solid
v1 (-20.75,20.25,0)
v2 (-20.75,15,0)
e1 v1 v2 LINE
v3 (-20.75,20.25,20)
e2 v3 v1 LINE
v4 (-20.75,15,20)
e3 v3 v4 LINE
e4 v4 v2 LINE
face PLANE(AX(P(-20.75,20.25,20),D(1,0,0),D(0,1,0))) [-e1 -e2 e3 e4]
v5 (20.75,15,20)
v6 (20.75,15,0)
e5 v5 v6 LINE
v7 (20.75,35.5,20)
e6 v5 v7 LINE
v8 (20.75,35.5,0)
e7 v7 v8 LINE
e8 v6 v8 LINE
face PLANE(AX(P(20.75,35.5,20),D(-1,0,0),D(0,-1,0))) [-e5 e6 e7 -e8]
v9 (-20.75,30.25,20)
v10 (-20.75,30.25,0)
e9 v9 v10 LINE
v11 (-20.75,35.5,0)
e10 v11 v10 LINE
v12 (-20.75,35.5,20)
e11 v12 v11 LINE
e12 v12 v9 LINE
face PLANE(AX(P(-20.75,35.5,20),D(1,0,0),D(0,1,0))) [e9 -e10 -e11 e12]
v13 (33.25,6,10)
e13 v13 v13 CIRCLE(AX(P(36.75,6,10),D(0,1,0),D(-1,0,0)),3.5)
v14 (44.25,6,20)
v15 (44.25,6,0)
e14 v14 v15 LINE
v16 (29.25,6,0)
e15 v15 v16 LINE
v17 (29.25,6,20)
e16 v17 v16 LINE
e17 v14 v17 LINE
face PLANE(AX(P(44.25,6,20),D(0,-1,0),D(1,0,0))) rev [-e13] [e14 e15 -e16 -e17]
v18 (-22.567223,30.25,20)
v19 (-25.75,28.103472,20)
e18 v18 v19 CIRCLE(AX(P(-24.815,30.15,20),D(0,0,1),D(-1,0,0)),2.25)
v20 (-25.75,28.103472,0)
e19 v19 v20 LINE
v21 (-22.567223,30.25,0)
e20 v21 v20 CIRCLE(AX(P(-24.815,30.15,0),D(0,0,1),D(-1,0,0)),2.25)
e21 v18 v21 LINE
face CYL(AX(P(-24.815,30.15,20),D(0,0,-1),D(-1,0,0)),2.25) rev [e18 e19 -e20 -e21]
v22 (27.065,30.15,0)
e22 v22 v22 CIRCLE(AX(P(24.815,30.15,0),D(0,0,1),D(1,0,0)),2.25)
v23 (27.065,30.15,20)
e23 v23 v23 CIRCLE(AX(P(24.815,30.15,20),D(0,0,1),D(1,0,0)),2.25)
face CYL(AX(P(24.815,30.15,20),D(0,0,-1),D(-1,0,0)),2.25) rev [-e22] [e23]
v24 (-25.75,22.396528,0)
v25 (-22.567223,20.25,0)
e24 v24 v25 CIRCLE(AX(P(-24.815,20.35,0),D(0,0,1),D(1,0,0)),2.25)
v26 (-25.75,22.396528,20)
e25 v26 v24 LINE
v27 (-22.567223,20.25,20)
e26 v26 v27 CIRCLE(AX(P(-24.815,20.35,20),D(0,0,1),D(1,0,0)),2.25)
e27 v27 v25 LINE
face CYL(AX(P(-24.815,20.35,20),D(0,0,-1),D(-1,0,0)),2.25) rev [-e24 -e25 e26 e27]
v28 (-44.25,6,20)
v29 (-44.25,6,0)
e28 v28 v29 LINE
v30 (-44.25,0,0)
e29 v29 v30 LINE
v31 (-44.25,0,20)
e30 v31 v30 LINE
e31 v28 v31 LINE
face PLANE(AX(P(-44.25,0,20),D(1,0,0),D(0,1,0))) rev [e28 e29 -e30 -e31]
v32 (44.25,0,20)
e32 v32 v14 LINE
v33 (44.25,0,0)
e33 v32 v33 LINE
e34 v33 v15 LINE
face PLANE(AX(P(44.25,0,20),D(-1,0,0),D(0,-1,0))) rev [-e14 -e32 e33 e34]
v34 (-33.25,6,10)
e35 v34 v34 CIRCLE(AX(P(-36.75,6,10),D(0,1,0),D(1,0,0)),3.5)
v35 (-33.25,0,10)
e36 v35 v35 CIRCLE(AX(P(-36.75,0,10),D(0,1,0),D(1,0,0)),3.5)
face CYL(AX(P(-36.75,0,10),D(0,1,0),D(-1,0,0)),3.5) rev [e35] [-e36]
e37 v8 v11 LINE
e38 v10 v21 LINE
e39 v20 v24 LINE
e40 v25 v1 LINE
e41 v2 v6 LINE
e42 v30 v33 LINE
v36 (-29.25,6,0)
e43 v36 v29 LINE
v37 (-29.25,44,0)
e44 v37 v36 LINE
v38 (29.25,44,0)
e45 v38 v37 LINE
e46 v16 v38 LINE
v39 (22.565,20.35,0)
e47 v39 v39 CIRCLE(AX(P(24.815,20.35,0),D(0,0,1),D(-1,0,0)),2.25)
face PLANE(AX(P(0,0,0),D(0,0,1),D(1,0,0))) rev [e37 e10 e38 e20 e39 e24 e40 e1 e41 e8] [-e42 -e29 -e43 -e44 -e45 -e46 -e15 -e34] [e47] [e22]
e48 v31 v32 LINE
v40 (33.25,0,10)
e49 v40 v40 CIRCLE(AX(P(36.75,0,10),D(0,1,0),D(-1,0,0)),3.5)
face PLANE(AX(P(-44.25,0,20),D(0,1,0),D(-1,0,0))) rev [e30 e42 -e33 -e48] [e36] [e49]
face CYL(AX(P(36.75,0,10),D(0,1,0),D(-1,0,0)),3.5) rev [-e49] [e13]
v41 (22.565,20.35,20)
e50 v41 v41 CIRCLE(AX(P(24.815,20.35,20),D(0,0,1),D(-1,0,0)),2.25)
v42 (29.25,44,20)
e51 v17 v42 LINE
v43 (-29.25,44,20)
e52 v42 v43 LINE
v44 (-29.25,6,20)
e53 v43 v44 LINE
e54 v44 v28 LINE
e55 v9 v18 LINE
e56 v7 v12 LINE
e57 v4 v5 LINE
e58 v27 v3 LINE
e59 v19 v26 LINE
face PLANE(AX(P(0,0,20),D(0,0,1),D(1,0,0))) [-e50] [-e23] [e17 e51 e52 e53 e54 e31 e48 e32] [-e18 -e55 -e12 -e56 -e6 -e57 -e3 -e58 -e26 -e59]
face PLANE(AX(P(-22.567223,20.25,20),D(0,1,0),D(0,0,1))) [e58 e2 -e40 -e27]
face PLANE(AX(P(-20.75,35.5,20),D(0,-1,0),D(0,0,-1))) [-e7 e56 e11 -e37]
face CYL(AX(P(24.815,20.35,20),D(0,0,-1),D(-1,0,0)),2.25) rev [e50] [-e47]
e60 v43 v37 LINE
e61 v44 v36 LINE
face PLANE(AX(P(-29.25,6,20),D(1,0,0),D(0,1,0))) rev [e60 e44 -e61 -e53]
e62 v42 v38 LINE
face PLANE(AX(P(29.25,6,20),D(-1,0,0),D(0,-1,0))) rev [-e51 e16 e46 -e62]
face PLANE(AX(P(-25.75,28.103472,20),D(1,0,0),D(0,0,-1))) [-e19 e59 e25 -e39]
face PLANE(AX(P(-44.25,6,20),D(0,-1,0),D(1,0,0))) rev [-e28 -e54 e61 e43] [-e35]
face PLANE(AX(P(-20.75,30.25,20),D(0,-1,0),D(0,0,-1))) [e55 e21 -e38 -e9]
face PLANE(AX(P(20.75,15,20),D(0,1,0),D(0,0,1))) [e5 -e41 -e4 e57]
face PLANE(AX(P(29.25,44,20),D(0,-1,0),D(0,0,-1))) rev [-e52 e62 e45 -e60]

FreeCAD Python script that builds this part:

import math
import FreeCAD as App
import Part
import Sketcher
from FreeCAD import Vector

doc = App.newDocument("Part")
body = doc.addObject("PartDesign::Body", "Body")

# Sketch on XY plane
sketch1 = body.newObject("Sketcher::SketchObject", "Sketch")
sketch1.AttachmentSupport = (doc.getObject("XY_Plane"), [""])
sketch1.MapMode = "FlatFace"
sketch1.addGeometry(Part.LineSegment(Vector(-44.25, 0, 0), Vector(44.25, 0, 0)), False)
sketch1.addGeometry(Part.LineSegment(Vector(44.25, 0, 0), Vector(44.25, 6, 0)), False)
sketch1.addGeometry(Part.LineSegment(Vector(44.25, 6, 0), Vector(29.25, 6, 0)), False)
sketch1.addGeometry(Part.LineSegment(Vector(29.25, 6, 0), Vector(29.25, 44, 0)), False)
sketch1.addGeometry(Part.LineSegment(Vector(29.25, 44, 0), Vector(-29.25, 44, 0)), False)
sketch1.addGeometry(Part.LineSegment(Vector(-29.25, 44, 0), Vector(-29.25, 6, 0)), False)
sketch1.addGeometry(Part.LineSegment(Vector(-29.25, 6, 0), Vector(-44.25, 6, 0)), False)
sketch1.addGeometry(Part.LineSegment(Vector(-44.25, 6, 0), Vector(-44.25, 0, 0)), False)
sketch1.addGeometry(Part.Circle(Vector(24.815, 20.35, 0), Vector(0, 0, 1), 2.25), False)
sketch1.addGeometry(Part.LineSegment(Vector(-20.75, 30.25, 0), Vector(-20.75, 35.5, 0)), False)
sketch1.addGeometry(Part.LineSegment(Vector(-20.75, 35.5, 0), Vector(20.75, 35.5, 0)), False)
sketch1.addGeometry(Part.LineSegment(Vector(20.75, 35.5, 0), Vector(20.75, 15, 0)), False)
sketch1.addGeometry(Part.LineSegment(Vector(20.75, 15, 0), Vector(-20.75, 15, 0)), False)
sketch1.addGeometry(Part.LineSegment(Vector(-20.75, 15, 0), Vector(-20.75, 20.25, 0)), False)
sketch1.addGeometry(Part.LineSegment(Vector(-20.75, 20.25, 0), Vector(-22.567223, 20.25, 0)), False)
sketch1.addGeometry(Part.ArcOfCircle(Part.Circle(Vector(-24.815, 20.35, 0), Vector(0, 0, 1), 2.25), math.radians(114.554307), math.radians(357.452682)), False)
sketch1.addGeometry(Part.LineSegment(Vector(-25.75, 22.396528, 0), Vector(-25.75, 28.103472, 0)), False)
sketch1.addGeometry(Part.ArcOfCircle(Part.Circle(Vector(-24.815, 30.15, 0), Vector(0, 0, 1), 2.25), math.radians(2.547318), math.radians(245.445693)), False)
sketch1.addGeometry(Part.LineSegment(Vector(-22.567223, 30.25, 0), Vector(-20.75, 30.25, 0)), False)
sketch1.addGeometry(Part.Circle(Vector(24.815, 30.15, 0), Vector(0, 0, 1), 2.25), False)
sketch1.addConstraint(Sketcher.Constraint("Coincident", 0, 2, 1, 1))
sketch1.addConstraint(Sketcher.Constraint("Coincident", 1, 2, 2, 1))
sketch1.addConstraint(Sketcher.Constraint("Coincident", 2, 2, 3, 1))
sketch1.addConstraint(Sketcher.Constraint("Coincident", 3, 2, 4, 1))
sketch1.addConstraint(Sketcher.Constraint("Coincident", 4, 2, 5, 1))
sketch1.addConstraint(Sketcher.Constraint("Coincident", 5, 2, 6, 1))
sketch1.addConstraint(Sketcher.Constraint("Coincident", 6, 2, 7, 1))
sketch1.addConstraint(Sketcher.Constraint("Coincident", 7, 2, 0, 1))
sketch1.addConstraint(Sketcher.Constraint("Coincident", 9, 2, 10, 1))
sketch1.addConstraint(Sketcher.Constraint("Coincident", 10, 2, 11, 1))
sketch1.addConstraint(Sketcher.Constraint("Coincident", 11, 2, 12, 1))
sketch1.addConstraint(Sketcher.Constraint("Coincident", 12, 2, 13, 1))
sketch1.addConstraint(Sketcher.Constraint("Coincident", 13, 2, 14, 1))
sketch1.addConstraint(Sketcher.Constraint("Coincident", 14, 2, 15, 2))
sketch1.addConstraint(Sketcher.Constraint("Coincident", 15, 1, 16, 1))
sketch1.addConstraint(Sketcher.Constraint("Coincident", 16, 2, 17, 2))
sketch1.addConstraint(Sketcher.Constraint("Coincident", 17, 1, 18, 1))
sketch1.addConstraint(Sketcher.Constraint("Coincident", 18, 2, 9, 1))
sketch1.addConstraint(Sketcher.Constraint("Horizontal", 0))
sketch1.addConstraint(Sketcher.Constraint("Vertical", 1))
sketch1.addConstraint(Sketcher.Constraint("Horizontal", 2))
sketch1.addConstraint(Sketcher.Constraint("Vertical", 3))
sketch1.addConstraint(Sketcher.Constraint("Horizontal", 4))
sketch1.addConstraint(Sketcher.Constraint("Vertical", 5))
sketch1.addConstraint(Sketcher.Constraint("Horizontal", 6))
sketch1.addConstraint(Sketcher.Constraint("Vertical", 7))
sketch1.addConstraint(Sketcher.Constraint("Vertical", 9))
sketch1.addConstraint(Sketcher.Constraint("Horizontal", 10))
sketch1.addConstraint(Sketcher.Constraint("Vertical", 11))
sketch1.addConstraint(Sketcher.Constraint("Horizontal", 12))
sketch1.addConstraint(Sketcher.Constraint("Vertical", 13))
sketch1.addConstraint(Sketcher.Constraint("Horizontal", 14))
sketch1.addConstraint(Sketcher.Constraint("Vertical", 16))
sketch1.addConstraint(Sketcher.Constraint("Horizontal", 18))
sketch1.addConstraint(Sketcher.Constraint("Equal", 8, 15))
sketch1.addConstraint(Sketcher.Constraint("Equal", 15, 17))
sketch1.addConstraint(Sketcher.Constraint("Equal", 17, 19))
sketch1.addConstraint(Sketcher.Constraint("Symmetric", 0, 2, 7, 2, -1, 1))
sketch1.addConstraint(Sketcher.Constraint("Symmetric", 8, 3, 15, 3, -2))
sketch1.addConstraint(Sketcher.Constraint("Symmetric", 17, 3, 19, 3, -2))
sketch1.addConstraint(Sketcher.Constraint("Symmetric", 2, 2, 5, 2, -2))
sketch1.addConstraint(Sketcher.Constraint("Vertical", 15, 3, 17, 3))
sketch1.addConstraint(Sketcher.Constraint("Vertical", 9, 2, 12, 2))
sketch1.addConstraint(Sketcher.Constraint("Vertical", 14, 2, 17, 1))
sketch1.addConstraint(Sketcher.Constraint("Equal", 9, 13))
sketch1.addConstraint(Sketcher.Constraint("Diameter", 8, 4.5))
sketch1.addConstraint(Sketcher.Constraint("DistanceX", 2, 2, 2, 1, 15.0))
sketch1.addConstraint(Sketcher.Constraint("DistanceY", 1, 1, 1, 2, 6.0))
sketch1.addConstraint(Sketcher.Constraint("DistanceY", 3, 1, 3, 2, 38.0))
sketch1.addConstraint(Sketcher.Constraint("DistanceX", 0, 1, 0, 2, 88.5))
sketch1.addConstraint(Sketcher.Constraint("DistanceX", 10, 1, 10, 2, 41.5))
sketch1.addConstraint(Sketcher.Constraint("DistanceY", 11, 2, 11, 1, 20.5))
sketch1.addConstraint(Sketcher.Constraint("DistanceY", -1, 1, 11, 2, 15.0))
sketch1.addConstraint(Sketcher.Constraint("DistanceX", 15, 1, 13, 2, 5.0))
sketch1.addConstraint(Sketcher.Constraint("DistanceY", 14, 2, 17, 1, 10.0))
sketch1.addConstraint(Sketcher.Constraint("DistanceY", 15, 3, 17, 3, 9.8))
sketch1.addConstraint(Sketcher.Constraint("DistanceX", 4, 2, 9, 2, 8.5))
sketch1.addConstraint(Sketcher.Constraint("DistanceX", 15, 3, 8, 3, 49.63))
pad1 = body.newObject("PartDesign::Pad", "Pad")
pad1.Profile = sketch1
pad1.Length = 20

# Sketch on XZ plane
sketch2 = body.newObject("Sketcher::SketchObject", "Sketch001")
sketch2.AttachmentSupport = (doc.getObject("XZ_Plane"), [""])
sketch2.MapMode = "FlatFace"
sketch2.AttachmentOffset = App.Placement(Vector(0, 0, -6), App.Rotation())
sketch2.addGeometry(Part.Circle(Vector(36.75, 10, 0), Vector(0, 0, 1), 3.5), False)
sketch2.addGeometry(Part.Circle(Vector(-36.75, 10, 0), Vector(0, 0, 1), 3.5), False)
sketch2.addConstraint(Sketcher.Constraint("Equal", 0, 1))
sketch2.addConstraint(Sketcher.Constraint("Symmetric", 0, 3, 1, 3, -2))
sketch2.addConstraint(Sketcher.Constraint("Diameter", 0, 7.0))
sketch2.addConstraint(Sketcher.Constraint("DistanceY", -1, 1, 0, 3, 10.0))
sketch2.addConstraint(Sketcher.Constraint("DistanceX", 1, 3, 0, 3, 73.5))
pocket1 = body.newObject("PartDesign::Pocket", "Pocket")
pocket1.Profile = sketch2
pocket1.Type = "ThroughAll"
pocket1.Reversed = True

doc.recompute()
